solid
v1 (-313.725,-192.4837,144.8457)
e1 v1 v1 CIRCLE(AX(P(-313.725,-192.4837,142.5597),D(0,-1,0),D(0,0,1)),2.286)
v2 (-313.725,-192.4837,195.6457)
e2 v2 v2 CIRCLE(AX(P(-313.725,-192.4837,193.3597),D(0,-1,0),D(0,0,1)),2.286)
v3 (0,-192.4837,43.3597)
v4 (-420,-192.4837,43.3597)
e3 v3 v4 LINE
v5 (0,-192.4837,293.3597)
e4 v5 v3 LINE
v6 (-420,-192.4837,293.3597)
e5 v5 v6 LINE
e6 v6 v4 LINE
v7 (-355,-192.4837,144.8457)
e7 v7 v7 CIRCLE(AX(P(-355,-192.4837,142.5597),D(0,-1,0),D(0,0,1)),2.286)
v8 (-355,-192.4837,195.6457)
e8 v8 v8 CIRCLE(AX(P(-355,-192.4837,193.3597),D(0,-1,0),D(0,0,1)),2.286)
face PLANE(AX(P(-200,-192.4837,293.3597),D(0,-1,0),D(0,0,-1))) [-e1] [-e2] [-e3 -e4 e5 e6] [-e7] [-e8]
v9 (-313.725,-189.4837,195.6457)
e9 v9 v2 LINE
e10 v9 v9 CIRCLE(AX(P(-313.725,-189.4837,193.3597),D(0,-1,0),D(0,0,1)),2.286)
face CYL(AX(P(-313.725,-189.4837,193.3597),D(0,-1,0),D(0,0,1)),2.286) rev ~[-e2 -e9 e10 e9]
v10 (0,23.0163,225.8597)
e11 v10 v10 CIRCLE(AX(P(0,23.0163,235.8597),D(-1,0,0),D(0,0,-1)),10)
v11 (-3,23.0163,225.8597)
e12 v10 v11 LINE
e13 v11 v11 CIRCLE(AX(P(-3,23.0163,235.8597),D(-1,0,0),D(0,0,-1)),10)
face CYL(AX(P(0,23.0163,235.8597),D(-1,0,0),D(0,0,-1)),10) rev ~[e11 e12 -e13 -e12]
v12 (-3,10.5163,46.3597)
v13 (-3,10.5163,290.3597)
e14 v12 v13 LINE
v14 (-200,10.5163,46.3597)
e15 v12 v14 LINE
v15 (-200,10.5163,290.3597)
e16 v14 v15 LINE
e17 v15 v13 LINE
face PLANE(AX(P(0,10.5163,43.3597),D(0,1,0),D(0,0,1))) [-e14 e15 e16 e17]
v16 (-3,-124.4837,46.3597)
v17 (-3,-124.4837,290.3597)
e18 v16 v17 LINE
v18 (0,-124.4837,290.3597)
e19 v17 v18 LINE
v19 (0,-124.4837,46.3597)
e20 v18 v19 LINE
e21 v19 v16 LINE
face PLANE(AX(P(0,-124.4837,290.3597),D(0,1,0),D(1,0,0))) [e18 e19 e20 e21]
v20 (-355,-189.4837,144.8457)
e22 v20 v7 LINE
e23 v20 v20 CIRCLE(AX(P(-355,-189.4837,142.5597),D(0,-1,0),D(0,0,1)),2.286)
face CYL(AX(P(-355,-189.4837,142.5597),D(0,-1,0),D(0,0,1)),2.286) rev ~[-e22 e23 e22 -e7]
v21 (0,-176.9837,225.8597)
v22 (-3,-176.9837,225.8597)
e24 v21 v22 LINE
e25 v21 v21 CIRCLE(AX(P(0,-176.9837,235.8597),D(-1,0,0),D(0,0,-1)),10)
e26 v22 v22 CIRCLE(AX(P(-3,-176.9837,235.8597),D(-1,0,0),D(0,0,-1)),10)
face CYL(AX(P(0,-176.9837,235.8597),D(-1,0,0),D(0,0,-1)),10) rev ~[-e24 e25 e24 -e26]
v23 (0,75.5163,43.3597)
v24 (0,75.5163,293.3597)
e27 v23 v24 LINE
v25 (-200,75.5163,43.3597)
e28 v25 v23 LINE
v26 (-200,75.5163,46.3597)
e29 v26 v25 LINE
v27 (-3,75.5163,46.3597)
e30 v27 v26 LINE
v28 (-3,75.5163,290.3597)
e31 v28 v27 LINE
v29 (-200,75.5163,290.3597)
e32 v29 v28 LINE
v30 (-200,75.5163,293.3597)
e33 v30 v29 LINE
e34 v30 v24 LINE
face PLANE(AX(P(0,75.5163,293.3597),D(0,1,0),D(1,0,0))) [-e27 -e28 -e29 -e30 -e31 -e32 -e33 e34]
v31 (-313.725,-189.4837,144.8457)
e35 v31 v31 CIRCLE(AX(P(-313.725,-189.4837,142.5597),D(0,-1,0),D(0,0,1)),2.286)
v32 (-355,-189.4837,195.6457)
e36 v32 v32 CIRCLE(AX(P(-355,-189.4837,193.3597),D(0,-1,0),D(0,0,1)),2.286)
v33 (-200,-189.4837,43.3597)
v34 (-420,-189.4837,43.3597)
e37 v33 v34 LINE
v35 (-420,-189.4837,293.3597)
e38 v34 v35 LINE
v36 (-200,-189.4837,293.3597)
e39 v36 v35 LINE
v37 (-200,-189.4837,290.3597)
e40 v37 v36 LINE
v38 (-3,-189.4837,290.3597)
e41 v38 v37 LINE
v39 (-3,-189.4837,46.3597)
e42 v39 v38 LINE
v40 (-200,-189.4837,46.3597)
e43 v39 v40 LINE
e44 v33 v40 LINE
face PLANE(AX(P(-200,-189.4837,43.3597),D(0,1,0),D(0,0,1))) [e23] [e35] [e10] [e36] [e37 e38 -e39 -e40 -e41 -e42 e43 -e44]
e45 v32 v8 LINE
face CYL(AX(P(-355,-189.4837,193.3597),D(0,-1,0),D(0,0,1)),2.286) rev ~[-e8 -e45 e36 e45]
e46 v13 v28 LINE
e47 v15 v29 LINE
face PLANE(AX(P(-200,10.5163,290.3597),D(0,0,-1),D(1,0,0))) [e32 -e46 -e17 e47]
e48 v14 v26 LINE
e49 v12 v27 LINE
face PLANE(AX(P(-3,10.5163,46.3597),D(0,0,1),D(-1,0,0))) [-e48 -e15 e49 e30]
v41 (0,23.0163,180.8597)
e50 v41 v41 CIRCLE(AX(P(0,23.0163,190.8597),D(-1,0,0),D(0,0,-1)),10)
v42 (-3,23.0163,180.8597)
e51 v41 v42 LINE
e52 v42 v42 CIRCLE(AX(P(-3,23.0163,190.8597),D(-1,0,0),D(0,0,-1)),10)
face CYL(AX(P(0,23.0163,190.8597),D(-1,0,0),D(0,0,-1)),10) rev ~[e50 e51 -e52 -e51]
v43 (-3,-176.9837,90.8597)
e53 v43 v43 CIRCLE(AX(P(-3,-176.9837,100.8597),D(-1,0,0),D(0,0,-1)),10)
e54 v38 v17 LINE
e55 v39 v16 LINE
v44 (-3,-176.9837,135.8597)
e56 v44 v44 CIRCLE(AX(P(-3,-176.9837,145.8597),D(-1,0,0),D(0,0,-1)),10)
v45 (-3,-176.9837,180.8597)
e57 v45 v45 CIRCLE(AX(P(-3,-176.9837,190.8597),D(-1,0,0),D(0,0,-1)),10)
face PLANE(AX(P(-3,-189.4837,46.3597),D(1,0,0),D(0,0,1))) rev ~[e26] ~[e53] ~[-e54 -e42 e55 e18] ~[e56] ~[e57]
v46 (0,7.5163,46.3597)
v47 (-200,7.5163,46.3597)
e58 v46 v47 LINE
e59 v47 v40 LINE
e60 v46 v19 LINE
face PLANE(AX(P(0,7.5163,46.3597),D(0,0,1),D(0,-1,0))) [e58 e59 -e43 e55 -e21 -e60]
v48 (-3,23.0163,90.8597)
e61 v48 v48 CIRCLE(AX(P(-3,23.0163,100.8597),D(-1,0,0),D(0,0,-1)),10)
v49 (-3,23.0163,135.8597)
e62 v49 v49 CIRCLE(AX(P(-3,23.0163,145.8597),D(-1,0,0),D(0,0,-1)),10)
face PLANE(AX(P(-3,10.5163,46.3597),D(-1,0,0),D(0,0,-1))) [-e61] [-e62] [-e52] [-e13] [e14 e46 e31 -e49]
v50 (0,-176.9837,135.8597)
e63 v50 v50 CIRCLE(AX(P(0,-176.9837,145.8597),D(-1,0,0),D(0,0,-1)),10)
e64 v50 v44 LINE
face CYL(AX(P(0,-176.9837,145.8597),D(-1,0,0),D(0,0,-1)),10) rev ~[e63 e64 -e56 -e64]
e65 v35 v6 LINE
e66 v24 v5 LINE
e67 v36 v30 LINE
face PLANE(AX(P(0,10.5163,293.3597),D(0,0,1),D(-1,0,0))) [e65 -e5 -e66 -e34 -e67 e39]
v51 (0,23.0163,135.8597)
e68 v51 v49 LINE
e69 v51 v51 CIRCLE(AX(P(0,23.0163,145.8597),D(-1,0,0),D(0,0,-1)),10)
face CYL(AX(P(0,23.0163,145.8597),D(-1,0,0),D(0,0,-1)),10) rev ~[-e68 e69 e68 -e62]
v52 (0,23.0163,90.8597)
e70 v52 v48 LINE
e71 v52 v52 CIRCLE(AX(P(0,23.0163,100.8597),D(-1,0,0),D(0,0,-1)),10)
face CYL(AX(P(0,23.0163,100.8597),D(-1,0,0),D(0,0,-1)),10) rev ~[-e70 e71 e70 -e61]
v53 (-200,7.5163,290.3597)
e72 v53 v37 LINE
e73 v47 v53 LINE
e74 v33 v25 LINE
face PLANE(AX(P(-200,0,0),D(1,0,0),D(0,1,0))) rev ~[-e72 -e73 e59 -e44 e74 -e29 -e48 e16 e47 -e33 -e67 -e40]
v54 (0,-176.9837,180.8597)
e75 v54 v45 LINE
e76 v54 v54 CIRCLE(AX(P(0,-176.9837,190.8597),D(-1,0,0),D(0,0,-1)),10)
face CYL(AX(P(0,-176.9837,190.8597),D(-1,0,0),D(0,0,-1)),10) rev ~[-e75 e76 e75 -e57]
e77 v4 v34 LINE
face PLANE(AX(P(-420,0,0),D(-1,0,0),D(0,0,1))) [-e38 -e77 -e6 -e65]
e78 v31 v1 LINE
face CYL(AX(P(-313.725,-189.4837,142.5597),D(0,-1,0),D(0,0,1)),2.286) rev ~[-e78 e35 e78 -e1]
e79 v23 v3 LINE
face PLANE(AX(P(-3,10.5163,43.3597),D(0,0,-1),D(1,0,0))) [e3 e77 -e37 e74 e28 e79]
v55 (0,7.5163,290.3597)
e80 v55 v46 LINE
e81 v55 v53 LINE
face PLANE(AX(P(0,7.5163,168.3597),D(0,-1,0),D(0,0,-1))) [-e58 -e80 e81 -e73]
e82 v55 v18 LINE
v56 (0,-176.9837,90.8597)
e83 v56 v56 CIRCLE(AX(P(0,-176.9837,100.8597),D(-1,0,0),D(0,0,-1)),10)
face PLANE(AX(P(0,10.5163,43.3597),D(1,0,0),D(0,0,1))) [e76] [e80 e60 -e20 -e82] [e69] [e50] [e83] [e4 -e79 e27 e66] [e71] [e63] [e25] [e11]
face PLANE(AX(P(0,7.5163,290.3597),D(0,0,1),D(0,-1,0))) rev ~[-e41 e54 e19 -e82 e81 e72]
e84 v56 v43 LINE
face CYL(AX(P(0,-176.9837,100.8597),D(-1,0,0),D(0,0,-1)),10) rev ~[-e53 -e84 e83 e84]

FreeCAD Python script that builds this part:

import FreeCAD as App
import Part
import Sketcher

V = App.Vector
Q = App.Units.Quantity

doc = App.newDocument("Part")
body = doc.addObject("PartDesign::Body", "Body")

sketch1 = body.newObject("Sketcher::SketchObject", "Sketch")
sketch1.AttachmentSupport = (doc.getObject("YZ_Plane"), [""])
sketch1.MapMode = "FlatFace"
sketch1.addGeometry([
    Part.LineSegment(V(11, 43, 0), V(11, 293, 0)),
    Part.LineSegment(V(11, 293, 0), V(-192, 293, 0)),
    Part.LineSegment(V(-192, 293, 0), V(-192, 43, 0)),
    Part.LineSegment(V(-192, 43, 0), V(11, 43, 0)),
    Part.LineSegment(V(8, 46, 0), V(-189, 46, 0)),
    Part.LineSegment(V(-189, 46, 0), V(-189, 290, 0)),
    Part.LineSegment(V(-189, 290, 0), V(8, 290, 0)),
    Part.LineSegment(V(8, 290, 0), V(8, 46, 0)),
], False)
sketch1.addConstraint([
    Sketcher.Constraint("Coincident", 0, 2, 1, 1),
    Sketcher.Constraint("Coincident", 1, 2, 2, 1),
    Sketcher.Constraint("Coincident", 2, 2, 3, 1),
    Sketcher.Constraint("Coincident", 3, 2, 0, 1),
    Sketcher.Constraint("Coincident", 4, 2, 5, 1),
    Sketcher.Constraint("Coincident", 5, 2, 6, 1),
    Sketcher.Constraint("Coincident", 6, 2, 7, 1),
    Sketcher.Constraint("Coincident", 7, 2, 4, 1),
    Sketcher.Constraint("Vertical", 0),
    Sketcher.Constraint("Horizontal", 1),
    Sketcher.Constraint("Vertical", 2),
    Sketcher.Constraint("Horizontal", 3),
    Sketcher.Constraint("Horizontal", 4),
    Sketcher.Constraint("Vertical", 5),
    Sketcher.Constraint("Horizontal", 6),
    Sketcher.Constraint("Vertical", 7),
    Sketcher.Constraint("DistanceY", 0, 1, 0, 2, Q("250 mm")),
    Sketcher.Constraint("DistanceY", 5, 1, 5, 2, Q("244 mm")),
    Sketcher.Constraint("DistanceX", 2, 2, 4, 2, Q("3 mm")),
    Sketcher.Constraint("DistanceY", 2, 2, 4, 2, Q("3 mm")),
    Sketcher.Constraint("DistanceX", 4, 2, 3, 2, Q("200 mm")),
    Sketcher.Constraint("DistanceX", 6, 2, 0, 2, Q("3 mm")),
    Sketcher.Constraint("DistanceX", -1, 1, 0, 2, Q("10.5163 mm")),
    Sketcher.Constraint("DistanceY", -1, 1, 0, 2, Q("293.3597 mm")),
])
pad1 = body.newObject("PartDesign::Pad", "Pad")
pad1.Profile = sketch1
pad1.Length = 200
pad1.Reversed = True

sketch2 = body.newObject("Sketcher::SketchObject", "Sketch001")
sketch2.AttachmentSupport = (doc.getObject("YZ_Plane"), [""])
sketch2.MapMode = "FlatFace"
sketch2.AttachmentOffset = App.Placement(V(0, 0, -200), App.Rotation())
sketch2.addGeometry([
    Part.LineSegment(V(-189.5, 293.4, 0), V(-189.5, 43.4, 0)),
    Part.LineSegment(V(-189.5, 43.4, 0), V(-192.5, 43.4, 0)),
    Part.LineSegment(V(-192.5, 43.4, 0), V(-192.5, 293.4, 0)),
    Part.LineSegment(V(-192.5, 293.4, 0), V(-189.5, 293.4, 0)),
], False)
sketch2.addConstraint([
    Sketcher.Constraint("Coincident", 0, 2, 1, 1),
    Sketcher.Constraint("Coincident", 1, 2, 2, 1),
    Sketcher.Constraint("Coincident", 2, 2, 3, 1),
    Sketcher.Constraint("Coincident", 3, 2, 0, 1),
    Sketcher.Constraint("Vertical", 0),
    Sketcher.Constraint("Horizontal", 1),
    Sketcher.Constraint("Vertical", 2),
    Sketcher.Constraint("Horizontal", 3),
    Sketcher.Constraint("DistanceX", 1, 2, 1, 1, Q("3 mm")),
    Sketcher.Constraint("DistanceY", 0, 2, 0, 1, Q("250 mm")),
    Sketcher.Constraint("DistanceX", 0, 2, -1, 1, Q("189.4837 mm")),
    Sketcher.Constraint("DistanceY", -1, 1, 0, 2, Q("43.3597 mm")),
])
pad2 = body.newObject("PartDesign::Pad", "Pad001")
pad2.Profile = sketch2
pad2.Length = 220
pad2.Reversed = True

sketch3 = body.newObject("Sketcher::SketchObject", "Sketch002")
sketch3.AttachmentSupport = (doc.getObject("XZ_Plane"), [""])
sketch3.MapMode = "FlatFace"
sketch3.AttachmentOffset = App.Placement(V(0, 0, 189.4837), App.Rotation())
sketch3.addGeometry([
    Part.Circle(V(-355, 193.4, 0), V(0, 0, 1), 2.3),
    Part.Circle(V(-355, 142.6, 0), V(0, 0, 1), 2.3),
    Part.Circle(V(-313.7, 142.6, 0), V(0, 0, 1), 2.3),
    Part.Circle(V(-313.7, 193.4, 0), V(0, 0, 1), 2.3),
], False)
sketch3.addConstraint([
    Sketcher.Constraint("Equal", 0, 1),
    Sketcher.Constraint("Equal", 1, 2),
    Sketcher.Constraint("Equal", 2, 3),
    Sketcher.Constraint("Horizontal", 1, 3, 2, 3),
    Sketcher.Constraint("Horizontal", 0, 3, 3, 3),
    Sketcher.Constraint("Vertical", 0, 3, 1, 3),
    Sketcher.Constraint("Vertical", 2, 3, 3, 3),
    Sketcher.Constraint("Diameter", 0, Q("4.572 mm")),
    Sketcher.Constraint("DistanceX", 0, 3, -1, 1, Q("355 mm")),
    Sketcher.Constraint("DistanceY", 1, 3, 0, 3, Q("50.8 mm")),
    Sketcher.Constraint("DistanceX", 2, 3, -1, 1, Q("313.725 mm")),
    Sketcher.Constraint("DistanceY", -1, 1, 0, 3, Q("193.3597 mm")),
])
doc.recompute()
hole = body.newObject("PartDesign::Hole", "Hole")
hole.Profile = sketch3
hole.ThreadType = "None"
hole.Diameter = 4.572
hole.DepthType = "Dimension"
hole.Depth = 26
hole.DrillPoint = "Angled"
hole.DrillPointAngle = 118
hole.Reversed = True

sketch4 = body.newObject("Sketcher::SketchObject", "Sketch003")
sketch4.AttachmentSupport = (doc.getObject("XZ_Plane"), [""])
sketch4.MapMode = "FlatFace"
sketch4.AttachmentOffset = App.Placement(V(0, 0, -10.5163), App.Rotation())
sketch4.addGeometry([
    Part.LineSegment(V(0, 43.4, 0), V(-3, 43.4, 0)),
    Part.LineSegment(V(-3, 43.4, 0), V(-3, 293.4, 0)),
    Part.LineSegment(V(-3, 293.4, 0), V(0, 293.4, 0)),
    Part.LineSegment(V(0, 293.4, 0), V(0, 43.4, 0)),
], False)
sketch4.addConstraint([
    Sketcher.Constraint("Coincident", 0, 2, 1, 1),
    Sketcher.Constraint("Coincident", 1, 2, 2, 1),
    Sketcher.Constraint("Coincident", 2, 2, 3, 1),
    Sketcher.Constraint("Coincident", 3, 2, 0, 1),
    Sketcher.Constraint("Horizontal", 0),
    Sketcher.Constraint("Vertical", 1),
    Sketcher.Constraint("Horizontal", 2),
    Sketcher.Constraint("Vertical", 3),
    Sketcher.Constraint("PointOnObject", 2, 2, -2),
    Sketcher.Constraint("DistanceX", 0, 2, 0, 1, Q("3 mm")),
    Sketcher.Constraint("DistanceY", 1, 1, 1, 2, Q("250 mm")),
    Sketcher.Constraint("DistanceY", -1, 1, 0, 2, Q("43.3597 mm")),
])
pad3 = body.newObject("PartDesign::Pad", "Pad002")
pad3.Profile = sketch4
pad3.Length = 65
pad3.Reversed = True

sketch5 = body.newObject("Sketcher::SketchObject", "Sketch004")
sketch5.AttachmentSupport = (doc.getObject("YZ_Plane"), [""])
sketch5.MapMode = "FlatFace"
sketch5.addGeometry([
    Part.Circle(V(23, 236, 0), V(0, 0, 1), 10),
    Part.Circle(V(23, 191, 0), V(0, 0, 1), 10),
    Part.Circle(V(23, 146, 0), V(0, 0, 1), 10),
    Part.Circle(V(23, 101, 0), V(0, 0, 1), 10),
], False)
sketch5.addConstraint([
    Sketcher.Constraint("Equal", 0, 1),
    Sketcher.Constraint("Equal", 1, 2),
    Sketcher.Constraint("Equal", 2, 3),
    Sketcher.Constraint("Vertical", 0, 3, 1, 3),
    Sketcher.Constraint("Vertical", 1, 3, 2, 3),
    Sketcher.Constraint("Vertical", 2, 3, 3, 3),
    Sketcher.Constraint("Diameter", 0, Q("20 mm")),
    Sketcher.Constraint("DistanceY", 1, 3, 0, 3, Q("45 mm")),
    Sketcher.Constraint("DistanceY", 2, 3, 1, 3, Q("45 mm")),
    Sketcher.Constraint("DistanceY", 3, 3, 2, 3, Q("45 mm")),
    Sketcher.Constraint("DistanceX", -1, 1, 0, 3, Q("23.0163 mm")),
    Sketcher.Constraint("DistanceY", -1, 1, 0, 3, Q("235.8597 mm")),
])
doc.recompute()
hole2 = body.newObject("PartDesign::Hole", "Hole001")
hole2.Profile = sketch5
hole2.ThreadType = "None"
hole2.Diameter = 20
hole2.DepthType = "Dimension"
hole2.Depth = 26
hole2.DrillPoint = "Angled"
hole2.DrillPointAngle = 118

sketch6 = body.newObject("Sketcher::SketchObject", "Sketch005")
sketch6.AttachmentSupport = (doc.getObject("XZ_Plane"), [""])
sketch6.MapMode = "FlatFace"
sketch6.AttachmentOffset = App.Placement(V(0, 0, -10.5163), App.Rotation())
sketch6.addGeometry([
    Part.LineSegment(V(-3, 46.4, 0), V(-3, 43.4, 0)),
    Part.LineSegment(V(-3, 43.4, 0), V(-200, 43.4, 0)),
    Part.LineSegment(V(-200, 43.4, 0), V(-200, 46.4, 0)),
    Part.LineSegment(V(-200, 46.4, 0), V(-3, 46.4, 0)),
    Part.LineSegment(V(-3, 293.4, 0), V(-3, 290.4, 0)),
    Part.LineSegment(V(-3, 290.4, 0), V(-200, 290.4, 0)),
    Part.LineSegment(V(-200, 290.4, 0), V(-200, 293.4, 0)),
    Part.LineSegment(V(-200, 293.4, 0), V(-3, 293.4, 0)),
], False)
sketch6.addConstraint([
    Sketcher.Constraint("Coincident", 0, 2, 1, 1),
    Sketcher.Constraint("Coincident", 1, 2, 2, 1),
    Sketcher.Constraint("Coincident", 2, 2, 3, 1),
    Sketcher.Constraint("Coincident", 3, 2, 0, 1),
    Sketcher.Constraint("Coincident", 4, 2, 5, 1),
    Sketcher.Constraint("Coincident", 5, 2, 6, 1),
    Sketcher.Constraint("Coincident", 6, 2, 7, 1),
    Sketcher.Constraint("Coincident", 7, 2, 4, 1),
    Sketcher.Constraint("Vertical", 0),
    Sketcher.Constraint("Horizontal", 1),
    Sketcher.Constraint("Vertical", 2),
    Sketcher.Constraint("Horizontal", 3),
    Sketcher.Constraint("Vertical", 4),
    Sketcher.Constraint("Horizontal", 5),
    Sketcher.Constraint("Vertical", 6),
    Sketcher.Constraint("Horizontal", 7),
    Sketcher.Constraint("Vertical", 3, 2, 4, 2),
    Sketcher.Constraint("Vertical", 2, 2, 5, 2),
    Sketcher.Constraint("Equal", 2, 4),
    Sketcher.Constraint("DistanceX", 1, 2, 1, 1, Q("197 mm")),
    Sketcher.Constraint("DistanceY", 0, 2, 0, 1, Q("3 mm")),
    Sketcher.Constraint("DistanceX", 0, 2, -1, 1, Q("3 mm")),
    Sketcher.Constraint("DistanceY", 1, 2, 6, 2, Q("250 mm")),
    Sketcher.Constraint("DistanceY", -1, 1, 0, 2, Q("43.3597 mm")),
])
pad4 = body.newObject("PartDesign::Pad", "Pad003")
pad4.Profile = sketch6
pad4.Length = 65
pad4.Reversed = True

sketch7 = body.newObject("Sketcher::SketchObject", "Sketch006")
sketch7.AttachmentSupport = (doc.getObject("XZ_Plane"), [""])
sketch7.MapMode = "FlatFace"
sketch7.AttachmentOffset = App.Placement(V(0, 0, 189.4837), App.Rotation())
sketch7.addGeometry([
    Part.LineSegment(V(-3, 46.4, 0), V(-3, 290.4, 0)),
    Part.LineSegment(V(-3, 290.4, 0), V(0, 290.4, 0)),
    Part.LineSegment(V(0, 290.4, 0), V(0, 46.4, 0)),
    Part.LineSegment(V(0, 46.4, 0), V(-3, 46.4, 0)),
], False)
sketch7.addConstraint([
    Sketcher.Constraint("Coincident", 0, 2, 1, 1),
    Sketcher.Constraint("Coincident", 1, 2, 2, 1),
    Sketcher.Constraint("Coincident", 2, 2, 3, 1),
    Sketcher.Constraint("Coincident", 3, 2, 0, 1),
    Sketcher.Constraint("Vertical", 0),
    Sketcher.Constraint("Horizontal", 1),
    Sketcher.Constraint("Vertical", 2),
    Sketcher.Constraint("Horizontal", 3),
    Sketcher.Constraint("PointOnObject", 1, 2, -2),
    Sketcher.Constraint("DistanceX", 1, 1, 1, 2, Q("3 mm")),
    Sketcher.Constraint("DistanceY", 0, 1, 0, 2, Q("244 mm")),
    Sketcher.Constraint("DistanceY", -1, 1, 0, 2, Q("290.3597 mm")),
])
pad5 = body.newObject("PartDesign::Pad", "Pad004")
pad5.Profile = sketch7
pad5.Length = 65
pad5.Reversed = True

sketch8 = body.newObject("Sketcher::SketchObject", "Sketch007")
sketch8.AttachmentSupport = (doc.getObject("YZ_Plane"), [""])
sketch8.MapMode = "FlatFace"
sketch8.addGeometry([
    Part.Circle(V(-177, 236, 0), V(0, 0, 1), 10),
    Part.Circle(V(-177, 191, 0), V(0, 0, 1), 10),
    Part.Circle(V(-177, 146, 0), V(0, 0, 1), 10),
    Part.Circle(V(-177, 101, 0), V(0, 0, 1), 10),
], False)
sketch8.addConstraint([
    Sketcher.Constraint("Equal", 0, 1),
    Sketcher.Constraint("Equal", 1, 2),
    Sketcher.Constraint("Equal", 2, 3),
    Sketcher.Constraint("Vertical", 0, 3, 1, 3),
    Sketcher.Constraint("Vertical", 1, 3, 2, 3),
    Sketcher.Constraint("Vertical", 2, 3, 3, 3),
    Sketcher.Constraint("Diameter", 0, Q("20 mm")),
    Sketcher.Constraint("DistanceY", 1, 3, 0, 3, Q("45 mm")),
    Sketcher.Constraint("DistanceY", 2, 3, 1, 3, Q("45 mm")),
    Sketcher.Constraint("DistanceY", 3, 3, 2, 3, Q("45 mm")),
    Sketcher.Constraint("DistanceX", 0, 3, -1, 1, Q("176.9837 mm")),
    Sketcher.Constraint("DistanceY", -1, 1, 0, 3, Q("235.8597 mm")),
])
doc.recompute()
hole3 = body.newObject("PartDesign::Hole", "Hole002")
hole3.Profile = sketch8
hole3.ThreadType = "None"
hole3.Diameter = 20
hole3.DepthType = "Dimension"
hole3.Depth = 26
hole3.DrillPoint = "Angled"
hole3.DrillPointAngle = 118

doc.recompute()
